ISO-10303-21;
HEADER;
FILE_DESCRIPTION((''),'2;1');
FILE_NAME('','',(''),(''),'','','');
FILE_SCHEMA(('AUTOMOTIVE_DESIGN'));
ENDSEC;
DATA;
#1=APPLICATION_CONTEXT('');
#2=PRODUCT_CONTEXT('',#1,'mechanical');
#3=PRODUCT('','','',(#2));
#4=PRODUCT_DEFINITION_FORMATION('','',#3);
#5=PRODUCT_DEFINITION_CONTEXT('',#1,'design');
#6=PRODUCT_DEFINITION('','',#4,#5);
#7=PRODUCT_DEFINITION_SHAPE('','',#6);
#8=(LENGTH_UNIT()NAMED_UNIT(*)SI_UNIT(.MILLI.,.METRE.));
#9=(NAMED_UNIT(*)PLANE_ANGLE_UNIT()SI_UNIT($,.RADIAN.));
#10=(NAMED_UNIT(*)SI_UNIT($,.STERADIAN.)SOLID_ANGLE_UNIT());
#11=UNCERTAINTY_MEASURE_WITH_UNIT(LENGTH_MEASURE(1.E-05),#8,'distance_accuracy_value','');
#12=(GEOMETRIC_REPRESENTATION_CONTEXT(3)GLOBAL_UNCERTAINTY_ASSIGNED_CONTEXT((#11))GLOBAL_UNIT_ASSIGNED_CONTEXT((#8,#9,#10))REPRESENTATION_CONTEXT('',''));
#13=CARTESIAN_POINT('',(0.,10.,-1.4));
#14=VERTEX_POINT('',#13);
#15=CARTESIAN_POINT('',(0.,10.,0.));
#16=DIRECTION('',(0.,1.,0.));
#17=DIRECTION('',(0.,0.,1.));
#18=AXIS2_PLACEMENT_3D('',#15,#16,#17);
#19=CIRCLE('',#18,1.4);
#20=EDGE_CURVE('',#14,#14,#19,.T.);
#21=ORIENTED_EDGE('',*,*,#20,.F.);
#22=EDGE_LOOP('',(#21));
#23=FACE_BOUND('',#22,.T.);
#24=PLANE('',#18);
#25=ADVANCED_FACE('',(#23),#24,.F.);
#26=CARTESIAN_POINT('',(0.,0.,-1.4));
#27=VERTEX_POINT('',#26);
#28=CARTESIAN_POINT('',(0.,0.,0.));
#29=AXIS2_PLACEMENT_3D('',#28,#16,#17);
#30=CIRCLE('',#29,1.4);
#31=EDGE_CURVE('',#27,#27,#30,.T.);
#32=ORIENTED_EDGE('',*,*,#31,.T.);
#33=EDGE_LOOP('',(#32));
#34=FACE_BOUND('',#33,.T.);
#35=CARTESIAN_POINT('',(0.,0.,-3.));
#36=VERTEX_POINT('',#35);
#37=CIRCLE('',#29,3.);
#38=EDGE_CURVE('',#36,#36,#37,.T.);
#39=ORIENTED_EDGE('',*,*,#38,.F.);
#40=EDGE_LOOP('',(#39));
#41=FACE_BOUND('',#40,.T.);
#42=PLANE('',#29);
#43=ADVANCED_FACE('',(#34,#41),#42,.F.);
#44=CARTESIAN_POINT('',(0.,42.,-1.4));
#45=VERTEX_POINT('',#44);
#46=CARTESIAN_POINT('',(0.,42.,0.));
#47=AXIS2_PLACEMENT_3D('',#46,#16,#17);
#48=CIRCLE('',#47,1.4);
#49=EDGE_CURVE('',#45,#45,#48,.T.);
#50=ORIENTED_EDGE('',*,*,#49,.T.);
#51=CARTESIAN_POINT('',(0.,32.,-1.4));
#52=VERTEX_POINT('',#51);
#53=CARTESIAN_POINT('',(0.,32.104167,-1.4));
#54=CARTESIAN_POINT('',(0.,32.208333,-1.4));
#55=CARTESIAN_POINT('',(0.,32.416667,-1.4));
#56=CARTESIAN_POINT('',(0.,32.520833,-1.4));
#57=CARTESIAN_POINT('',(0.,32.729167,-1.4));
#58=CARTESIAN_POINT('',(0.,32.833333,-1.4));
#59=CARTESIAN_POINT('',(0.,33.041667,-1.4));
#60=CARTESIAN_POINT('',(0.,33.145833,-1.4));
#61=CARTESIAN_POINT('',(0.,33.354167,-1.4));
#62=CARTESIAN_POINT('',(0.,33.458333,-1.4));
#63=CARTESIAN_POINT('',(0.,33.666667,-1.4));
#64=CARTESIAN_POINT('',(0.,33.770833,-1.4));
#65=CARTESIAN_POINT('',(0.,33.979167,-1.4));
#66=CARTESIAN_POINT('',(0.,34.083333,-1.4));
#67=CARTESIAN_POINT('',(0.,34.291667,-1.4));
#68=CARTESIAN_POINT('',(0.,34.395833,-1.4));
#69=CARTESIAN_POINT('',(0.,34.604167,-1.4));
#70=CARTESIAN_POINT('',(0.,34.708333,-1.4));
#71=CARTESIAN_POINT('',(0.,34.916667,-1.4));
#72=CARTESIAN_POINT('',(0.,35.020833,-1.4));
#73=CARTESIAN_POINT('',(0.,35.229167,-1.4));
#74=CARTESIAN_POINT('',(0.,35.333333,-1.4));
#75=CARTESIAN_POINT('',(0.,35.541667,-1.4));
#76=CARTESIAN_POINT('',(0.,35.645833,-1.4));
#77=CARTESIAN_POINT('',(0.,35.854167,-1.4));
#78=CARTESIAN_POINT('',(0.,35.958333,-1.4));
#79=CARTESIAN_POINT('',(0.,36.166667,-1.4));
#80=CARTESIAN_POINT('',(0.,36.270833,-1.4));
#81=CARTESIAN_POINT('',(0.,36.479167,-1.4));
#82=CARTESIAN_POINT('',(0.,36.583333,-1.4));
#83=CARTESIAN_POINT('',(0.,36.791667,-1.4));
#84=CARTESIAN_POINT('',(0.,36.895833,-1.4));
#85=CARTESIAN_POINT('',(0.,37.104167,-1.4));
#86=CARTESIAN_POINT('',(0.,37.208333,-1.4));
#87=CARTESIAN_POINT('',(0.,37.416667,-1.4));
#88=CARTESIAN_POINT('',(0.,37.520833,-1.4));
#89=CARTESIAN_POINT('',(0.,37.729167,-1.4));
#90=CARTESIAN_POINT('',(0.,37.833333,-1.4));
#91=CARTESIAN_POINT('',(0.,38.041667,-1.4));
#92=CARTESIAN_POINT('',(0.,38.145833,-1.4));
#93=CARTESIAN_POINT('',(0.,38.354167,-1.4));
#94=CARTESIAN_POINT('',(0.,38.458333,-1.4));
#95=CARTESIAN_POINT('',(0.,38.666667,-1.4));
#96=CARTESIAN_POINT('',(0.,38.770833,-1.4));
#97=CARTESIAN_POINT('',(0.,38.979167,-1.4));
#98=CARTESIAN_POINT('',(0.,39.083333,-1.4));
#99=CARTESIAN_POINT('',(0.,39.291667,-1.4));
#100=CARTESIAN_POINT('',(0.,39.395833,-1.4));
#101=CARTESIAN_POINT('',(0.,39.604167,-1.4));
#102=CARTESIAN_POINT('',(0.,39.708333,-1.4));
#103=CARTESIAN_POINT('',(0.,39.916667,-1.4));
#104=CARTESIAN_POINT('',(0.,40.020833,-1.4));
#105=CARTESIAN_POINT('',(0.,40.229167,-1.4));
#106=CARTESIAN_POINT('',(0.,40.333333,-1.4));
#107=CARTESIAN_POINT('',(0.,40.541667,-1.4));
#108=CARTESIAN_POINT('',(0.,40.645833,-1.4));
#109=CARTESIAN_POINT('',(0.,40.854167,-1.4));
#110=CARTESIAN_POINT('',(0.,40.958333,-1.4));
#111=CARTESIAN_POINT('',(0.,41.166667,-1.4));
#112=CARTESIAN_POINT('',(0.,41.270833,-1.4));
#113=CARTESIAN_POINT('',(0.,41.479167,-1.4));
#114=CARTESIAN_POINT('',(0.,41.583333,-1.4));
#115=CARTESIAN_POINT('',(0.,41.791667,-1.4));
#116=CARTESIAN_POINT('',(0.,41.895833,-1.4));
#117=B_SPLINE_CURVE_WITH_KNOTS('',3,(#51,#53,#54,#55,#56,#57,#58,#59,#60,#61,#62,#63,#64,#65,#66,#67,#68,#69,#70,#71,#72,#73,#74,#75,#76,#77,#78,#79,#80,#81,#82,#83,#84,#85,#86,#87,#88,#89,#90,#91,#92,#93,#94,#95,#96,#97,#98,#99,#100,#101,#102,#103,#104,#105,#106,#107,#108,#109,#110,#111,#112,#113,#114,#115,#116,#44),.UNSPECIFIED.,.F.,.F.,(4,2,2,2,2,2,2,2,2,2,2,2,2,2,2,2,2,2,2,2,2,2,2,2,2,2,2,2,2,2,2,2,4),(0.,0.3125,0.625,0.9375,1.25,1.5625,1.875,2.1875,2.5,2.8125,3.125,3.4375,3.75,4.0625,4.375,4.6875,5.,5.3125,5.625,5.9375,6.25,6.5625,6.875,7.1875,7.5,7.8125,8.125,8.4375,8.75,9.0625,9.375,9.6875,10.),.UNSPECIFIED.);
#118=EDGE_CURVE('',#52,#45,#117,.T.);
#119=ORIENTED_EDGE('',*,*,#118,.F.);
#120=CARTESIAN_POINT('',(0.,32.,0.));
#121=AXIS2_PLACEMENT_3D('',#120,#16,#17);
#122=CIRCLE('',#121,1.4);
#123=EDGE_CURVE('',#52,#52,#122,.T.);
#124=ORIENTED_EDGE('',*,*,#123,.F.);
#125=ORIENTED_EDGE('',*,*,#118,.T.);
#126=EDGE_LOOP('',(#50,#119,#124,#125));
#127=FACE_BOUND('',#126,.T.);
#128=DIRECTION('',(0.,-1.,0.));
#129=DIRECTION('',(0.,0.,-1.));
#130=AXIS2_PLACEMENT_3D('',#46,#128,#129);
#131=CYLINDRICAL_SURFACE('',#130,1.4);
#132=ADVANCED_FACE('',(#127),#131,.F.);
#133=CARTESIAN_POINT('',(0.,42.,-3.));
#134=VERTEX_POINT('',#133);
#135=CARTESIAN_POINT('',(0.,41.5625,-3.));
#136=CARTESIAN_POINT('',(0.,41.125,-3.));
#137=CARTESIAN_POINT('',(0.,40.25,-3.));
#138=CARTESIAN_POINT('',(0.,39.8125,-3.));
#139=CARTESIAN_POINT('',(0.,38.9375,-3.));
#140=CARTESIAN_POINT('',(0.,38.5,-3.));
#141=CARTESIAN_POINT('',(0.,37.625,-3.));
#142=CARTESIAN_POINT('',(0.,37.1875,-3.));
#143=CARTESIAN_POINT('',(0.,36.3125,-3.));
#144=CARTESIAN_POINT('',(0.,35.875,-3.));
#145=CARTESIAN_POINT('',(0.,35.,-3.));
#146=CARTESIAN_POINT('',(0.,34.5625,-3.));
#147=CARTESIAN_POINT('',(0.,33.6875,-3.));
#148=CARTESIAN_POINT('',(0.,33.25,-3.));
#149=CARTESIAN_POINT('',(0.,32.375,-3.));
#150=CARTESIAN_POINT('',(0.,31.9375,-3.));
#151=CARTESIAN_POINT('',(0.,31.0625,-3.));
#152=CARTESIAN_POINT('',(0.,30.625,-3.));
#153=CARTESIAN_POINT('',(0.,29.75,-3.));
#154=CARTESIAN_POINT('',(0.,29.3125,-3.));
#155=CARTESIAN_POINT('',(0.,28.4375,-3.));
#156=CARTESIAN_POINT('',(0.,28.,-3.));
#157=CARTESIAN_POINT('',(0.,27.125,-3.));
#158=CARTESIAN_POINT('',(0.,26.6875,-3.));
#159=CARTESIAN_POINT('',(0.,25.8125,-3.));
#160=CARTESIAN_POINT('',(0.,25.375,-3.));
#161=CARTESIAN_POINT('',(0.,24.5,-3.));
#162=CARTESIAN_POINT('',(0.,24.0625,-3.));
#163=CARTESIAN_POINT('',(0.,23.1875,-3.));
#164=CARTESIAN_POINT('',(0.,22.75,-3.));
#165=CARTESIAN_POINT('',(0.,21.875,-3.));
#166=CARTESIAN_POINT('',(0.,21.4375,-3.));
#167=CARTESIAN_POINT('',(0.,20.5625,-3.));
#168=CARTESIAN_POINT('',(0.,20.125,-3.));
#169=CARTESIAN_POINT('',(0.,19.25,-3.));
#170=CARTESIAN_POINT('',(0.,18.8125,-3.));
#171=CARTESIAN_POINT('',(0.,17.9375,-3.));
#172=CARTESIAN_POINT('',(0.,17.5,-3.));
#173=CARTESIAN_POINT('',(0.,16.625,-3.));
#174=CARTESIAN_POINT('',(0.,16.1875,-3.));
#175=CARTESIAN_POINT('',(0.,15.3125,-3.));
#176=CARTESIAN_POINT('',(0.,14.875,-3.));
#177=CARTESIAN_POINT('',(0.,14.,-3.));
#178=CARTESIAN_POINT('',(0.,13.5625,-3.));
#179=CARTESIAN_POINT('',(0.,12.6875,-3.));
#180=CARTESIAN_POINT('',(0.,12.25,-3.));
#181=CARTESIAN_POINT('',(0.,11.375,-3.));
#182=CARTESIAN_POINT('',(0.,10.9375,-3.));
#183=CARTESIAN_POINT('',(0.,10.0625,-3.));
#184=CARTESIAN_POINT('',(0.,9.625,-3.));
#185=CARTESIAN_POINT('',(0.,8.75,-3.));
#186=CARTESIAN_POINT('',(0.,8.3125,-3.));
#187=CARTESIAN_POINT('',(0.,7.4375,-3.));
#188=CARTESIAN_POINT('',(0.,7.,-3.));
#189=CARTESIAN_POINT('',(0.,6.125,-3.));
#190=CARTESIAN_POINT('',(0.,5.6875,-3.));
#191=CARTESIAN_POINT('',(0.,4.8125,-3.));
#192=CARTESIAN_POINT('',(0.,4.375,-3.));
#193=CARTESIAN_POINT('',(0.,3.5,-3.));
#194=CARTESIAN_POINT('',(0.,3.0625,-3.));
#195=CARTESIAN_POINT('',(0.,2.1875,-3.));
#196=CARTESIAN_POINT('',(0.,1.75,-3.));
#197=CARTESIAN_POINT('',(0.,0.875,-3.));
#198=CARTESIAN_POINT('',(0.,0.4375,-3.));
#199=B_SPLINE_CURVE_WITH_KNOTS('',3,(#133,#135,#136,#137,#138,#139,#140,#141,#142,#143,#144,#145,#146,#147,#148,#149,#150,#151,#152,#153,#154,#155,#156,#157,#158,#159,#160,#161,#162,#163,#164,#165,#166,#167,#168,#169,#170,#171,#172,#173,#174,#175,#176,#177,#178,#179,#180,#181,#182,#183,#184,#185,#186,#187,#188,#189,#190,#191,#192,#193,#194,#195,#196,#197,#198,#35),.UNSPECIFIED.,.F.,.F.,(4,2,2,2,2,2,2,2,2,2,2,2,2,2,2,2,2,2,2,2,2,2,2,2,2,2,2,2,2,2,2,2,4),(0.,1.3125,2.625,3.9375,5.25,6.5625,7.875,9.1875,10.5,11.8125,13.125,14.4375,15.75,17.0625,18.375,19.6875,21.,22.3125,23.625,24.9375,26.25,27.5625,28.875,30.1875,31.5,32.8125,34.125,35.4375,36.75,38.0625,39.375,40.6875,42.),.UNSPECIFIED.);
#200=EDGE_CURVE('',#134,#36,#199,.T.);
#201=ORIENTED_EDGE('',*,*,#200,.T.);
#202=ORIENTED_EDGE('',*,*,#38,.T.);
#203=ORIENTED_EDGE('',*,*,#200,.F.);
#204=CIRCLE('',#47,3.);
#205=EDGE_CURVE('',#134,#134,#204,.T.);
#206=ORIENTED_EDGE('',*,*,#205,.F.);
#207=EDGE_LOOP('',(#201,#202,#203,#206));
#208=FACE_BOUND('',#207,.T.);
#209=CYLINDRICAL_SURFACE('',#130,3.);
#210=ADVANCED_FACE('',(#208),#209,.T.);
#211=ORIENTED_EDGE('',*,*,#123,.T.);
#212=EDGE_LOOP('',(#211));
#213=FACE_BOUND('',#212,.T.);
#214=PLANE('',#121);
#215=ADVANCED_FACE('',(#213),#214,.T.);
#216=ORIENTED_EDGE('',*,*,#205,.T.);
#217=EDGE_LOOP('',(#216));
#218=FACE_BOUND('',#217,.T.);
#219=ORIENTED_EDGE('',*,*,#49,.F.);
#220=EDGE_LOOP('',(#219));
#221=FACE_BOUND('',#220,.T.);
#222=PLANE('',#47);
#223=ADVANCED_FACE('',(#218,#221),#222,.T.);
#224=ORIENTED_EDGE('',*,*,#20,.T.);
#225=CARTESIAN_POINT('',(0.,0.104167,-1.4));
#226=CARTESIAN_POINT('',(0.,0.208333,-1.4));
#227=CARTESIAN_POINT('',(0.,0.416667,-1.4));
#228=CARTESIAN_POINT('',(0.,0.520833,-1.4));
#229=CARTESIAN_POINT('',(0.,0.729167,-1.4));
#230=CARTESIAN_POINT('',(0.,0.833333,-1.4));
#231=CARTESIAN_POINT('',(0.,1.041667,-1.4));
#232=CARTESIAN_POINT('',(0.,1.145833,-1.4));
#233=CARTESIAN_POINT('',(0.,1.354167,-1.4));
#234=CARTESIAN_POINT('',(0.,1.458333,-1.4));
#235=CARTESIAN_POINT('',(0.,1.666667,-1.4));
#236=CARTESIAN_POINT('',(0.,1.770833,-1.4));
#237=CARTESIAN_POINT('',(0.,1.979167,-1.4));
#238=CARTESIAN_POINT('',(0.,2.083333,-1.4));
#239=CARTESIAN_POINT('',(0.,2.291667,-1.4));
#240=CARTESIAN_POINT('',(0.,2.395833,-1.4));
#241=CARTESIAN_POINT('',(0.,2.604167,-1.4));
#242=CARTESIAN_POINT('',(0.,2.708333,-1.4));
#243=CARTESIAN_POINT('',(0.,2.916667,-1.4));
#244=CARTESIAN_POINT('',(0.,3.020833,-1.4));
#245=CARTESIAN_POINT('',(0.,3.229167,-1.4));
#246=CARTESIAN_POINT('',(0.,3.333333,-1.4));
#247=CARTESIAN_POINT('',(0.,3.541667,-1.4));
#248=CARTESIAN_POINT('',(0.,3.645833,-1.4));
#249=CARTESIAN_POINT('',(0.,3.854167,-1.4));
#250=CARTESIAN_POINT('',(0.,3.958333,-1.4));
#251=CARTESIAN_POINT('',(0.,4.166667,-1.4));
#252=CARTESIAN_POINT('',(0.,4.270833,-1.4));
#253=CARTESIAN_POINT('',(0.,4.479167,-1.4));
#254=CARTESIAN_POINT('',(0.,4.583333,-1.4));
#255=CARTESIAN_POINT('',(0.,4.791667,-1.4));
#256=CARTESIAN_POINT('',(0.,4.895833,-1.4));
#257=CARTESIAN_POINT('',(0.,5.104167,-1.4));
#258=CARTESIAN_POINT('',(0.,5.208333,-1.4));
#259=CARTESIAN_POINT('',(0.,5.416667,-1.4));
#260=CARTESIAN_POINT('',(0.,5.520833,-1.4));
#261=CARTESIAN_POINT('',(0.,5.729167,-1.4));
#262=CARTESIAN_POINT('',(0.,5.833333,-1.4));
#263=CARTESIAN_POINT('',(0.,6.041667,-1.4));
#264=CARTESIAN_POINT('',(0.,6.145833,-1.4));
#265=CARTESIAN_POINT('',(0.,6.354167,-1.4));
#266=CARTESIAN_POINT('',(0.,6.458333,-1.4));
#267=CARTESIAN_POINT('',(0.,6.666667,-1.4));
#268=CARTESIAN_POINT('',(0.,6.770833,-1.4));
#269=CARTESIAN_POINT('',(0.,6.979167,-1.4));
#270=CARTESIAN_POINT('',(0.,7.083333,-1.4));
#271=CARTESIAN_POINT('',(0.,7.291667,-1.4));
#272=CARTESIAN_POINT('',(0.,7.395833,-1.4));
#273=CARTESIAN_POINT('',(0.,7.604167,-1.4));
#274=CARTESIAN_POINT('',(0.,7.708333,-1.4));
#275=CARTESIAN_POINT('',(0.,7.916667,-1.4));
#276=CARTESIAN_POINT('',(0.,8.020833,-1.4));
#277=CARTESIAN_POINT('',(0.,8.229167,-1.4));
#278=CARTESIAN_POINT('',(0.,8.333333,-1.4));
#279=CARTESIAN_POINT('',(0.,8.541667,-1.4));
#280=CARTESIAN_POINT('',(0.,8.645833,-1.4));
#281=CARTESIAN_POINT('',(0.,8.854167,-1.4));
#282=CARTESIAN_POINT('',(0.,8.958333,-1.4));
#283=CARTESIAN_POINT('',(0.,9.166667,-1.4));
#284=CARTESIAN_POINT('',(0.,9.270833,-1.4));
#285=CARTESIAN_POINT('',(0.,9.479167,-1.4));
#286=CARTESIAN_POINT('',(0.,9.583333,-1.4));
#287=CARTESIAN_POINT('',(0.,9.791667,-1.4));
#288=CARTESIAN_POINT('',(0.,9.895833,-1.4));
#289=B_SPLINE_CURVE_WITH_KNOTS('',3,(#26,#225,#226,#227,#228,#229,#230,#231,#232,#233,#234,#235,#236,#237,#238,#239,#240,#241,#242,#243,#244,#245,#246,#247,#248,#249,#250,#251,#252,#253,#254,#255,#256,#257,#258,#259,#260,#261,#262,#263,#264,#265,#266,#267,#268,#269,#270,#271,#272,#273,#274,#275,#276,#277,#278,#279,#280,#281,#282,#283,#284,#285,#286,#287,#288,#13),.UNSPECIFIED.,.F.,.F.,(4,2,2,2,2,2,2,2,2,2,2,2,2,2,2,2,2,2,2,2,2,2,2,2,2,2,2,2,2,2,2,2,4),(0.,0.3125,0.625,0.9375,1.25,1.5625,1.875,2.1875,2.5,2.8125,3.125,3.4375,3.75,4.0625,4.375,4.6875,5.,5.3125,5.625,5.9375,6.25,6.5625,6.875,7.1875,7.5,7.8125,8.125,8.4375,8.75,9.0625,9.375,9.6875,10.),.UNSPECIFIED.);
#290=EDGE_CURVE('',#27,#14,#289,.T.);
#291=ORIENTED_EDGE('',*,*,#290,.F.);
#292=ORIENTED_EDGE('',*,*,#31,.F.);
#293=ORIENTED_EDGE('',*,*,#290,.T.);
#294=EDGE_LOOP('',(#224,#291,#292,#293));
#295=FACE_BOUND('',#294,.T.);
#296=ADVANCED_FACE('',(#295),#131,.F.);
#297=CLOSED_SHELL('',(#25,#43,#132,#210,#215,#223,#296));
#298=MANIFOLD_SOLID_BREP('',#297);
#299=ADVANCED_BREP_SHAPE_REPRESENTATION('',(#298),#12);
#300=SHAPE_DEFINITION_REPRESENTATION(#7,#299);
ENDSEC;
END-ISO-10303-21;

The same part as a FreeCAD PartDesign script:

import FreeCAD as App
import Part
import Sketcher
Q = App.Units.Quantity

doc = App.newDocument("Part")
body = doc.addObject("PartDesign::Body", "Body")

# Sketch on XZ plane
sketch1 = doc.addObject("Sketcher::SketchObject", "Sketch")
body.addObject(sketch1)
sketch1.AttachmentSupport = (doc.XZ_Plane, [""])
sketch1.MapMode = "FlatFace"
sketch1.addGeometry([
    Part.Circle(App.Vector(0, 0, 0), App.Vector(0, 0, 1), 3),
    Part.Circle(App.Vector(0, 0, 0), App.Vector(0, 0, 1), 1.4),
], False)
sketch1.addConstraint([
    Sketcher.Constraint("Coincident", 0, 3, -1, 1),
    Sketcher.Constraint("Coincident", 1, 3, -1, 1),
    Sketcher.Constraint("Diameter", 0, Q("6 mm")),
    Sketcher.Constraint("Diameter", 1, Q("2.8 mm")),
])
pad1 = doc.addObject("PartDesign::Pad", "Pad")
body.addObject(pad1)
pad1.Profile = sketch1
pad1.Length = 42
pad1.Reversed = True

# Sketch on XZ plane
sketch2 = doc.addObject("Sketcher::SketchObject", "Sketch001")
body.addObject(sketch2)
sketch2.AttachmentSupport = (doc.XZ_Plane, [""])
sketch2.MapMode = "FlatFace"
sketch2.AttachmentOffset = App.Placement(App.Vector(0, 0, -10), App.Rotation())
sketch2.addGeometry(Part.Circle(App.Vector(0, 0, 0), App.Vector(0, 0, 1), 1.4), False)
sketch2.addConstraint([
    Sketcher.Constraint("Coincident", 0, 3, -1, 1),
    Sketcher.Constraint("Diameter", 0, Q("2.8 mm")),
])
pad2 = doc.addObject("PartDesign::Pad", "Pad001")
body.addObject(pad2)
pad2.Profile = sketch2
pad2.Length = 22
pad2.Reversed = True

doc.recompute()
